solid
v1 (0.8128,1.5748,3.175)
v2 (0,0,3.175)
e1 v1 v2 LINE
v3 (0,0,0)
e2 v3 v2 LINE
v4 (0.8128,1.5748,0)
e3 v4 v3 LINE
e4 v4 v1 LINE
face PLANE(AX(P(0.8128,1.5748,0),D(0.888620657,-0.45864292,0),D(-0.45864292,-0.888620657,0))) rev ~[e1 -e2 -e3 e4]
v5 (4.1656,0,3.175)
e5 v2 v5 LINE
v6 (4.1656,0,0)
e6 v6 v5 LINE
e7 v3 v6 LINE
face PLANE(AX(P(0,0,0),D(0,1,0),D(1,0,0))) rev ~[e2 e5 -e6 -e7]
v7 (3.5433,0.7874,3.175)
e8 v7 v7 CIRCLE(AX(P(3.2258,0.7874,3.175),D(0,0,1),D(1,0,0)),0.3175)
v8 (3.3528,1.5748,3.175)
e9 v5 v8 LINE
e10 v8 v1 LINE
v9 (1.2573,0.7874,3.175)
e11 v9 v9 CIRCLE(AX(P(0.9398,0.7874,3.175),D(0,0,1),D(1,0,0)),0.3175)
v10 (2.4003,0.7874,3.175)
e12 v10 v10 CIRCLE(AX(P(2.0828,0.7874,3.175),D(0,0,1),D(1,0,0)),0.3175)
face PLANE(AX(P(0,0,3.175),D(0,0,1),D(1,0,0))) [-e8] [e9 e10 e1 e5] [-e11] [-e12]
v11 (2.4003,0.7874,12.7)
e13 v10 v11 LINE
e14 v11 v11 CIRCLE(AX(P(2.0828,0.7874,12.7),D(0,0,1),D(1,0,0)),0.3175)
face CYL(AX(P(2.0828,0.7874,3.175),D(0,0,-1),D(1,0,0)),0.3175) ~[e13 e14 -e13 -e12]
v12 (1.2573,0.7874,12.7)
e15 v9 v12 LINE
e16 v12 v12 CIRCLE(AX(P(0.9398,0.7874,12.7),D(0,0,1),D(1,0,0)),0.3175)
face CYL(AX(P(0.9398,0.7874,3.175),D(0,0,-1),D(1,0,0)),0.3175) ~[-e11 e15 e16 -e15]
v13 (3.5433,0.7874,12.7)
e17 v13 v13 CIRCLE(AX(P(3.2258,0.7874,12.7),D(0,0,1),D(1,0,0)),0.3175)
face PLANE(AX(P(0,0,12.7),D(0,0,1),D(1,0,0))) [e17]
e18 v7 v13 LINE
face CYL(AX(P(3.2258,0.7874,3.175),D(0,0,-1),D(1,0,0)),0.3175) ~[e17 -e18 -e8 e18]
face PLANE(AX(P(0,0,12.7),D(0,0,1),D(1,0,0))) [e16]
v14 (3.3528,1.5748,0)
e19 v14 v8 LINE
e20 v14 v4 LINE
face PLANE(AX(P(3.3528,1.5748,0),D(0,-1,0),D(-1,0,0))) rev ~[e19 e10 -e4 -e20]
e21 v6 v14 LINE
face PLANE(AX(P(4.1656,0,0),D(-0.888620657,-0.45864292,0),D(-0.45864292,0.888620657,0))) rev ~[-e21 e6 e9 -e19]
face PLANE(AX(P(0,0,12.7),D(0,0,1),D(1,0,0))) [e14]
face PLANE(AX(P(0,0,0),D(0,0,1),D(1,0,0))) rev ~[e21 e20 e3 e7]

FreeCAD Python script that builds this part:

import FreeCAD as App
import Part
import Sketcher
Q = App.Units.Quantity

doc = App.newDocument("Part")
body = doc.addObject("PartDesign::Body", "Body")

sketch1 = doc.addObject("Sketcher::SketchObject", "Sketch")
body.addObject(sketch1)
sketch1.AttachmentSupport = (doc.XY_Plane, [""])
sketch1.MapMode = "FlatFace"
sketch1.addGeometry([
    Part.LineSegment(App.Vector(0.8128, 1.5748, 0), App.Vector(0, 0, 0)),
    Part.LineSegment(App.Vector(0, 0, 0), App.Vector(4.1656, 0, 0)),
    Part.LineSegment(App.Vector(4.1656, 0, 0), App.Vector(3.3528, 1.5748, 0)),
    Part.LineSegment(App.Vector(3.3528, 1.5748, 0), App.Vector(0.8128, 1.5748, 0)),
], False)
sketch1.addConstraint([
    Sketcher.Constraint("Coincident", 0, 2, 1, 1),
    Sketcher.Constraint("Coincident", 1, 2, 2, 1),
    Sketcher.Constraint("Coincident", 2, 2, 3, 1),
    Sketcher.Constraint("Coincident", 3, 2, 0, 1),
    Sketcher.Constraint("Horizontal", 1),
    Sketcher.Constraint("Horizontal", 3),
    Sketcher.Constraint("Coincident", 0, 2, -1, 1),
    Sketcher.Constraint("Equal", 0, 2),
    Sketcher.Constraint("DistanceX", 3, 2, 3, 1, Q("0.1 in")),
    Sketcher.Constraint("DistanceX", 1, 1, 1, 2, Q("0.164 in")),
    Sketcher.Constraint("DistanceY", -1, 1, 2, 2, Q("0.062 in")),
])
pad1 = doc.addObject("PartDesign::Pad", "Pad")
body.addObject(pad1)
pad1.Profile = sketch1
pad1.Length = Q("0.125 in")

sketch2 = doc.addObject("Sketcher::SketchObject", "Sketch001")
body.addObject(sketch2)
sketch2.AttachmentSupport = (doc.XY_Plane, [""])
sketch2.MapMode = "FlatFace"
sketch2.AttachmentOffset = App.Placement(App.Vector(0, 0, 0.125 * 25.4), App.Rotation())
sketch2.addGeometry([
    Part.Circle(App.Vector(2.0828, 0.7874, 0), App.Vector(0, 0, 1), 0.3175),
    Part.Circle(App.Vector(3.2258, 0.7874, 0), App.Vector(0, 0, 1), 0.3175),
    Part.Circle(App.Vector(0.9398, 0.7874, 0), App.Vector(0, 0, 1), 0.3175),
], False)
sketch2.addConstraint([
    Sketcher.Constraint("Equal", 0, 1),
    Sketcher.Constraint("Equal", 1, 2),
    Sketcher.Constraint("Horizontal", 0, 3, 1, 3),
    Sketcher.Constraint("Horizontal", 1, 3, 2, 3),
    Sketcher.Constraint("Diameter", 0, Q("0.025 in")),
    Sketcher.Constraint("DistanceX", 0, 3, 1, 3, Q("0.045 in")),
    Sketcher.Constraint("DistanceX", 2, 3, 0, 3, Q("0.045 in")),
    Sketcher.Constraint("DistanceX", -1, 1, 0, 3, Q("0.082 in")),
    Sketcher.Constraint("DistanceY", -1, 1, 0, 3, Q("0.031 in")),
])
pad2 = doc.addObject("PartDesign::Pad", "Pad001")
body.addObject(pad2)
pad2.Profile = sketch2
pad2.Length = Q("0.375 in")

doc.recompute()
